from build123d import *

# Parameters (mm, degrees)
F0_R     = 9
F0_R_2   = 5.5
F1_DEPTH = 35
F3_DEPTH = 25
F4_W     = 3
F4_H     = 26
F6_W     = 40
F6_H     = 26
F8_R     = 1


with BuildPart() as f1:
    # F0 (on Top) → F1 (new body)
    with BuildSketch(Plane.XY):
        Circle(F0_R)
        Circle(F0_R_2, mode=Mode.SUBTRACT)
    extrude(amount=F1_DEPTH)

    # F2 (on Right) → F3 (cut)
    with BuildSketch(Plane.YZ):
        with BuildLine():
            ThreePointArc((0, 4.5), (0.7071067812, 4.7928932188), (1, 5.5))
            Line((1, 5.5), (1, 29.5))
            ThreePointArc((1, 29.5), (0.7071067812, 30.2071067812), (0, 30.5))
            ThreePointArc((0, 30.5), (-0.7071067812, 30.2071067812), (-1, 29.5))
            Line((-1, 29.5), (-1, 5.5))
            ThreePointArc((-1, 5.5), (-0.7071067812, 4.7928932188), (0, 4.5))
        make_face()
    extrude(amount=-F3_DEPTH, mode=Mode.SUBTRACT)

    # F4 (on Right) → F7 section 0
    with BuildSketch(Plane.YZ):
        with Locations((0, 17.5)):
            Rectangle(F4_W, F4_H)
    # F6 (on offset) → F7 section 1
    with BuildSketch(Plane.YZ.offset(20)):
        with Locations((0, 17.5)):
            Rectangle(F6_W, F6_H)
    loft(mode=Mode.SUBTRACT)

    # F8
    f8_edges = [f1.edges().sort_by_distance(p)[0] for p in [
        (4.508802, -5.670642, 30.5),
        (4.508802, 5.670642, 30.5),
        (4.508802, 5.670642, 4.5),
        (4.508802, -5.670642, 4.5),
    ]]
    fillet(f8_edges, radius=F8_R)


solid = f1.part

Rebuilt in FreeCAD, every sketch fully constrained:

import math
import FreeCAD as App
import Part
import Sketcher

V = App.Vector


def edges_at(feature, points):
    """Names of the edges that pass closest to the given points."""
    edges = feature.Shape.Edges
    near = lambda p: min(range(len(edges)), key=lambda i: edges[i].distToShape(Part.Vertex(*p))[0])
    return sorted({f"Edge{near(p) + 1}" for p in points})

doc = App.newDocument("Part")
body = doc.addObject("PartDesign::Body", "Body")

sketch1 = body.newObject("Sketcher::SketchObject", "Sketch")
sketch1.AttachmentSupport = (doc.getObject("XY_Plane"), [""])
sketch1.MapMode = "FlatFace"
sketch1.addGeometry(Part.Circle(V(0, 0, 0), V(0, 0, 1), 9), False)
sketch1.addGeometry(Part.Circle(V(0, 0, 0), V(0, 0, 1), 5.5), False)
sketch1.addConstraint(Sketcher.Constraint("Coincident", 0, 3, -1, 1))
sketch1.addConstraint(Sketcher.Constraint("Coincident", 1, 3, -1, 1))
sketch1.addConstraint(Sketcher.Constraint("Diameter", 0, 18.0))
sketch1.addConstraint(Sketcher.Constraint("Diameter", 1, 11.0))
pad1 = body.newObject("PartDesign::Pad", "Pad")
pad1.Profile = sketch1
pad1.Length = 35

sketch2 = body.newObject("Sketcher::SketchObject", "Sketch001")
sketch2.AttachmentSupport = (doc.getObject("YZ_Plane"), [""])
sketch2.MapMode = "FlatFace"
sketch2.addGeometry(Part.ArcOfCircle(Part.Circle(V(0, 5.5, 0), V(0, 0, 1), 1), math.radians(-90), math.radians(0)), False)
sketch2.addGeometry(Part.LineSegment(V(1, 5.5, 0), V(1, 29.5, 0)), False)
sketch2.addGeometry(Part.ArcOfCircle(Part.Circle(V(0, 29.5, 0), V(0, 0, 1), 1), math.radians(0), math.radians(90)), False)
sketch2.addGeometry(Part.ArcOfCircle(Part.Circle(V(0, 29.5, 0), V(0, 0, 1), 1), math.radians(90), math.radians(180)), False)
sketch2.addGeometry(Part.LineSegment(V(-1, 29.5, 0), V(-1, 5.5, 0)), False)
sketch2.addGeometry(Part.ArcOfCircle(Part.Circle(V(0, 5.5, 0), V(0, 0, 1), 1), math.radians(180), math.radians(270)), False)
sketch2.addConstraint(Sketcher.Constraint("Tangent", 0, 2, 1, 1))
sketch2.addConstraint(Sketcher.Constraint("Tangent", 1, 2, 2, 1))
sketch2.addConstraint(Sketcher.Constraint("Tangent", 2, 2, 3, 1))
sketch2.addConstraint(Sketcher.Constraint("Tangent", 3, 2, 4, 1))
sketch2.addConstraint(Sketcher.Constraint("Tangent", 4, 2, 5, 1))
sketch2.addConstraint(Sketcher.Constraint("Tangent", 5, 2, 0, 1))
sketch2.addConstraint(Sketcher.Constraint("Vertical", 1))
sketch2.addConstraint(Sketcher.Constraint("Vertical", 4))
sketch2.addConstraint(Sketcher.Constraint("Equal", 0, 2))
sketch2.addConstraint(Sketcher.Constraint("Equal", 2, 3))
sketch2.addConstraint(Sketcher.Constraint("PointOnObject", 0, 3, -2))
sketch2.addConstraint(Sketcher.Constraint("PointOnObject", 2, 2, -2))
sketch2.addConstraint(Sketcher.Constraint("PointOnObject", 5, 2, -2))
sketch2.addConstraint(Sketcher.Constraint("Radius", 0, 1.0))
sketch2.addConstraint(Sketcher.Constraint("DistanceY", 1, 1, 1, 2, 24.0))
sketch2.addConstraint(Sketcher.Constraint("DistanceY", -1, 1, 0, 3, 5.5))
pocket1 = body.newObject("PartDesign::Pocket", "Pocket")
pocket1.Profile = sketch2
pocket1.Length = 25

sketch3 = body.newObject("Sketcher::SketchObject", "Sketch002")
sketch3.AttachmentSupport = (doc.getObject("YZ_Plane"), [""])
sketch3.MapMode = "FlatFace"
sketch3.addGeometry(Part.LineSegment(V(-1.5, 30.5, 0), V(-1.5, 4.5, 0)), False)
sketch3.addGeometry(Part.LineSegment(V(-1.5, 4.5, 0), V(1.5, 4.5, 0)), False)
sketch3.addGeometry(Part.LineSegment(V(1.5, 4.5, 0), V(1.5, 30.5, 0)), False)
sketch3.addGeometry(Part.LineSegment(V(1.5, 30.5, 0), V(-1.5, 30.5, 0)), False)
sketch3.addConstraint(Sketcher.Constraint("Coincident", 0, 2, 1, 1))
sketch3.addConstraint(Sketcher.Constraint("Coincident", 1, 2, 2, 1))
sketch3.addConstraint(Sketcher.Constraint("Coincident", 2, 2, 3, 1))
sketch3.addConstraint(Sketcher.Constraint("Coincident", 3, 2, 0, 1))
sketch3.addConstraint(Sketcher.Constraint("Vertical", 0))
sketch3.addConstraint(Sketcher.Constraint("Horizontal", 1))
sketch3.addConstraint(Sketcher.Constraint("Vertical", 2))
sketch3.addConstraint(Sketcher.Constraint("Horizontal", 3))
sketch3.addConstraint(Sketcher.Constraint("DistanceX", 1, 1, 1, 2, 3.0))
sketch3.addConstraint(Sketcher.Constraint("DistanceY", 0, 2, 0, 1, 26.0))
sketch3.addConstraint(Sketcher.Constraint("DistanceX", 0, 2, -1, 1, 1.5))
sketch3.addConstraint(Sketcher.Constraint("DistanceY", -1, 1, 0, 2, 4.5))

sketch4 = body.newObject("Sketcher::SketchObject", "Sketch003")
sketch4.AttachmentSupport = (doc.getObject("YZ_Plane"), [""])
sketch4.MapMode = "FlatFace"
sketch4.AttachmentOffset = App.Placement(V(0, 0, 20), App.Rotation())
sketch4.addGeometry(Part.LineSegment(V(-20, 30.5, 0), V(-20, 4.5, 0)), False)
sketch4.addGeometry(Part.LineSegment(V(-20, 4.5, 0), V(20, 4.5, 0)), False)
sketch4.addGeometry(Part.LineSegment(V(20, 4.5, 0), V(20, 30.5, 0)), False)
sketch4.addGeometry(Part.LineSegment(V(20, 30.5, 0), V(-20, 30.5, 0)), False)
sketch4.addConstraint(Sketcher.Constraint("Coincident", 0, 2, 1, 1))
sketch4.addConstraint(Sketcher.Constraint("Coincident", 1, 2, 2, 1))
sketch4.addConstraint(Sketcher.Constraint("Coincident", 2, 2, 3, 1))
sketch4.addConstraint(Sketcher.Constraint("Coincident", 3, 2, 0, 1))
sketch4.addConstraint(Sketcher.Constraint("Vertical", 0))
sketch4.addConstraint(Sketcher.Constraint("Horizontal", 1))
sketch4.addConstraint(Sketcher.Constraint("Vertical", 2))
sketch4.addConstraint(Sketcher.Constraint("Horizontal", 3))
sketch4.addConstraint(Sketcher.Constraint("DistanceX", 1, 1, 1, 2, 40.0))
sketch4.addConstraint(Sketcher.Constraint("DistanceY", 0, 2, 0, 1, 26.0))
sketch4.addConstraint(Sketcher.Constraint("DistanceX", 0, 2, -1, 1, 20.0))
sketch4.addConstraint(Sketcher.Constraint("DistanceY", -1, 1, 0, 2, 4.5))

subtractiveloft = body.newObject("PartDesign::SubtractiveLoft", "SubtractiveLoft")
subtractiveloft.Profile = sketch3
subtractiveloft.Sections = [sketch4]
doc.recompute()

fillet = body.newObject("PartDesign::Fillet", "Fillet")
fillet.Base = (subtractiveloft, edges_at(subtractiveloft, [
    (4.509, -5.671, 30.5),
    (4.509, 5.671, 30.5),
    (4.509, 5.671, 4.5),
    (4.509, -5.671, 4.5),
]))
fillet.Radius = 1

doc.recompute()
